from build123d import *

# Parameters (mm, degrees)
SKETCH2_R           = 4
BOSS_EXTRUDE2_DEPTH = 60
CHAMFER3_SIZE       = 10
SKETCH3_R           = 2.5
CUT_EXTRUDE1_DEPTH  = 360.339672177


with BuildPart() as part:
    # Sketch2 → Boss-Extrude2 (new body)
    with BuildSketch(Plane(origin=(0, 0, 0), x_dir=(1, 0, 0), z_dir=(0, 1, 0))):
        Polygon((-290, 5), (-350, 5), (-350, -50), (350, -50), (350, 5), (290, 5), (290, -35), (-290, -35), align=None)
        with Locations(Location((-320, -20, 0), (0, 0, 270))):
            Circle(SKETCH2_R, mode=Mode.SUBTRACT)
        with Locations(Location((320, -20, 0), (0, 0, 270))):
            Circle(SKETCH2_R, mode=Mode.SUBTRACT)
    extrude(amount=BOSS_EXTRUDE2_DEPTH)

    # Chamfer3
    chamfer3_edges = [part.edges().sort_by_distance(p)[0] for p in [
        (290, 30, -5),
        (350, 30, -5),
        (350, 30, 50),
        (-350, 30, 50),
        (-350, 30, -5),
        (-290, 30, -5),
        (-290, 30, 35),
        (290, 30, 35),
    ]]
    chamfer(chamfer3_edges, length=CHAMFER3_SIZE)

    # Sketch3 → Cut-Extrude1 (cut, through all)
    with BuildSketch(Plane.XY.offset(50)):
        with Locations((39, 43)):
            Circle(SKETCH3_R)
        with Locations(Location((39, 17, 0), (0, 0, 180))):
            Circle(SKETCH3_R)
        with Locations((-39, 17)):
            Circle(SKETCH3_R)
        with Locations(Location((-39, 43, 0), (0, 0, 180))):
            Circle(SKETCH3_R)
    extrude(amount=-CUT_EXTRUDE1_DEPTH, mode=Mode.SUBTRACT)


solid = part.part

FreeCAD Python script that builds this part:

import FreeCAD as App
import Part
import Sketcher

V = App.Vector
Q = App.Units.Quantity


def edges_at(feature, points):
    """Names of the edges that pass closest to the given points."""
    edges = feature.Shape.Edges
    near = lambda p: min(range(len(edges)), key=lambda i: edges[i].distToShape(Part.Vertex(*p))[0])
    return sorted({f"Edge{near(p) + 1}" for p in points})

doc = App.newDocument("Part")
body = doc.addObject("PartDesign::Body", "Body")

sketch1 = body.newObject("Sketcher::SketchObject", "Sketch")
sketch1.AttachmentSupport = (doc.getObject("XZ_Plane"), [""])
sketch1.MapMode = "FlatFace"
sketch1.addGeometry(Part.LineSegment(V(-290, -5, 0), V(-350, -5, 0)), False)
sketch1.addGeometry(Part.LineSegment(V(-350, -5, 0), V(-350, 50, 0)), False)
sketch1.addGeometry(Part.LineSegment(V(-350, 50, 0), V(350, 50, 0)), False)
sketch1.addGeometry(Part.LineSegment(V(350, 50, 0), V(350, -5, 0)), False)
sketch1.addGeometry(Part.LineSegment(V(350, -5, 0), V(290, -5, 0)), False)
sketch1.addGeometry(Part.LineSegment(V(290, -5, 0), V(290, 35, 0)), False)
sketch1.addGeometry(Part.LineSegment(V(290, 35, 0), V(-290, 35, 0)), False)
sketch1.addGeometry(Part.LineSegment(V(-290, 35, 0), V(-290, -5, 0)), False)
sketch1.addGeometry(Part.Circle(V(-320, 20, 0), V(0, 0, 1), 4), False)
sketch1.addGeometry(Part.Circle(V(320, 20, 0), V(0, 0, 1), 4), False)
sketch1.addConstraint(Sketcher.Constraint("Coincident", 0, 2, 1, 1))
sketch1.addConstraint(Sketcher.Constraint("Coincident", 1, 2, 2, 1))
sketch1.addConstraint(Sketcher.Constraint("Coincident", 2, 2, 3, 1))
sketch1.addConstraint(Sketcher.Constraint("Coincident", 3, 2, 4, 1))
sketch1.addConstraint(Sketcher.Constraint("Coincident", 4, 2, 5, 1))
sketch1.addConstraint(Sketcher.Constraint("Coincident", 5, 2, 6, 1))
sketch1.addConstraint(Sketcher.Constraint("Coincident", 6, 2, 7, 1))
sketch1.addConstraint(Sketcher.Constraint("Coincident", 7, 2, 0, 1))
sketch1.addConstraint(Sketcher.Constraint("Horizontal", 0))
sketch1.addConstraint(Sketcher.Constraint("Vertical", 1))
sketch1.addConstraint(Sketcher.Constraint("Horizontal", 2))
sketch1.addConstraint(Sketcher.Constraint("Vertical", 3))
sketch1.addConstraint(Sketcher.Constraint("Horizontal", 4))
sketch1.addConstraint(Sketcher.Constraint("Vertical", 5))
sketch1.addConstraint(Sketcher.Constraint("Horizontal", 6))
sketch1.addConstraint(Sketcher.Constraint("Vertical", 7))
sketch1.addConstraint(Sketcher.Constraint("Equal", 8, 9))
sketch1.addConstraint(Sketcher.Constraint("Symmetric", 8, 3, 9, 3, -2))
sketch1.addConstraint(Sketcher.Constraint("Symmetric", 0, 2, 3, 2, -2))
sketch1.addConstraint(Sketcher.Constraint("Equal", 0, 4))
sketch1.addConstraint(Sketcher.Constraint("Diameter", 8, Q("8 mm")))
sketch1.addConstraint(Sketcher.Constraint("DistanceX", 0, 2, 0, 1, Q("60 mm")))
sketch1.addConstraint(Sketcher.Constraint("DistanceX", 2, 1, 2, 2, Q("700 mm")))
sketch1.addConstraint(Sketcher.Constraint("DistanceY", 1, 1, 1, 2, Q("55 mm")))
sketch1.addConstraint(Sketcher.Constraint("DistanceY", 5, 1, 5, 2, Q("40 mm")))
sketch1.addConstraint(Sketcher.Constraint("DistanceX", 8, 3, -1, 1, Q("320 mm")))
sketch1.addConstraint(Sketcher.Constraint("DistanceY", -1, 1, 8, 3, Q("20 mm")))
sketch1.addConstraint(Sketcher.Constraint("DistanceY", 0, 2, -1, 1, Q("5 mm")))
pad1 = body.newObject("PartDesign::Pad", "Pad")
pad1.Profile = sketch1
pad1.Length = 60
pad1.Reversed = True
doc.recompute()

chamfer = body.newObject("PartDesign::Chamfer", "Chamfer")
chamfer.Base = (pad1, edges_at(pad1, [
    (290, 30, -5),
    (350, 30, -5),
    (350, 30, 50),
    (-350, 30, 50),
    (-350, 30, -5),
    (-290, 30, -5),
    (-290, 30, 35),
    (290, 30, 35),
]))
chamfer.Size = 10

sketch2 = body.newObject("Sketcher::SketchObject", "Sketch001")
sketch2.AttachmentSupport = (doc.getObject("XY_Plane"), [""])
sketch2.MapMode = "FlatFace"
sketch2.AttachmentOffset = App.Placement(V(0, 0, 50), App.Rotation())
sketch2.addGeometry(Part.Circle(V(39, 43, 0), V(0, 0, 1), 2.5), False)
sketch2.addGeometry(Part.Circle(V(39, 17, 0), V(0, 0, 1), 2.5), False)
sketch2.addGeometry(Part.Circle(V(-39, 17, 0), V(0, 0, 1), 2.5), False)
sketch2.addGeometry(Part.Circle(V(-39, 43, 0), V(0, 0, 1), 2.5), False)
sketch2.addConstraint(Sketcher.Constraint("Equal", 0, 1))
sketch2.addConstraint(Sketcher.Constraint("Equal", 1, 2))
sketch2.addConstraint(Sketcher.Constraint("Equal", 2, 3))
sketch2.addConstraint(Sketcher.Constraint("Symmetric", 1, 3, 2, 3, -2))
sketch2.addConstraint(Sketcher.Constraint("Symmetric", 0, 3, 3, 3, -2))
sketch2.addConstraint(Sketcher.Constraint("Vertical", 0, 3, 1, 3))
sketch2.addConstraint(Sketcher.Constraint("Diameter", 0, Q("5 mm")))
sketch2.addConstraint(Sketcher.Constraint("DistanceX", -1, 1, 0, 3, Q("39 mm")))
sketch2.addConstraint(Sketcher.Constraint("DistanceY", -1, 1, 0, 3, Q("43 mm")))
sketch2.addConstraint(Sketcher.Constraint("DistanceY", -1, 1, 1, 3, Q("17 mm")))
pocket1 = body.newObject("PartDesign::Pocket", "Pocket")
pocket1.Profile = sketch2
pocket1.Type = "ThroughAll"

doc.recompute()
